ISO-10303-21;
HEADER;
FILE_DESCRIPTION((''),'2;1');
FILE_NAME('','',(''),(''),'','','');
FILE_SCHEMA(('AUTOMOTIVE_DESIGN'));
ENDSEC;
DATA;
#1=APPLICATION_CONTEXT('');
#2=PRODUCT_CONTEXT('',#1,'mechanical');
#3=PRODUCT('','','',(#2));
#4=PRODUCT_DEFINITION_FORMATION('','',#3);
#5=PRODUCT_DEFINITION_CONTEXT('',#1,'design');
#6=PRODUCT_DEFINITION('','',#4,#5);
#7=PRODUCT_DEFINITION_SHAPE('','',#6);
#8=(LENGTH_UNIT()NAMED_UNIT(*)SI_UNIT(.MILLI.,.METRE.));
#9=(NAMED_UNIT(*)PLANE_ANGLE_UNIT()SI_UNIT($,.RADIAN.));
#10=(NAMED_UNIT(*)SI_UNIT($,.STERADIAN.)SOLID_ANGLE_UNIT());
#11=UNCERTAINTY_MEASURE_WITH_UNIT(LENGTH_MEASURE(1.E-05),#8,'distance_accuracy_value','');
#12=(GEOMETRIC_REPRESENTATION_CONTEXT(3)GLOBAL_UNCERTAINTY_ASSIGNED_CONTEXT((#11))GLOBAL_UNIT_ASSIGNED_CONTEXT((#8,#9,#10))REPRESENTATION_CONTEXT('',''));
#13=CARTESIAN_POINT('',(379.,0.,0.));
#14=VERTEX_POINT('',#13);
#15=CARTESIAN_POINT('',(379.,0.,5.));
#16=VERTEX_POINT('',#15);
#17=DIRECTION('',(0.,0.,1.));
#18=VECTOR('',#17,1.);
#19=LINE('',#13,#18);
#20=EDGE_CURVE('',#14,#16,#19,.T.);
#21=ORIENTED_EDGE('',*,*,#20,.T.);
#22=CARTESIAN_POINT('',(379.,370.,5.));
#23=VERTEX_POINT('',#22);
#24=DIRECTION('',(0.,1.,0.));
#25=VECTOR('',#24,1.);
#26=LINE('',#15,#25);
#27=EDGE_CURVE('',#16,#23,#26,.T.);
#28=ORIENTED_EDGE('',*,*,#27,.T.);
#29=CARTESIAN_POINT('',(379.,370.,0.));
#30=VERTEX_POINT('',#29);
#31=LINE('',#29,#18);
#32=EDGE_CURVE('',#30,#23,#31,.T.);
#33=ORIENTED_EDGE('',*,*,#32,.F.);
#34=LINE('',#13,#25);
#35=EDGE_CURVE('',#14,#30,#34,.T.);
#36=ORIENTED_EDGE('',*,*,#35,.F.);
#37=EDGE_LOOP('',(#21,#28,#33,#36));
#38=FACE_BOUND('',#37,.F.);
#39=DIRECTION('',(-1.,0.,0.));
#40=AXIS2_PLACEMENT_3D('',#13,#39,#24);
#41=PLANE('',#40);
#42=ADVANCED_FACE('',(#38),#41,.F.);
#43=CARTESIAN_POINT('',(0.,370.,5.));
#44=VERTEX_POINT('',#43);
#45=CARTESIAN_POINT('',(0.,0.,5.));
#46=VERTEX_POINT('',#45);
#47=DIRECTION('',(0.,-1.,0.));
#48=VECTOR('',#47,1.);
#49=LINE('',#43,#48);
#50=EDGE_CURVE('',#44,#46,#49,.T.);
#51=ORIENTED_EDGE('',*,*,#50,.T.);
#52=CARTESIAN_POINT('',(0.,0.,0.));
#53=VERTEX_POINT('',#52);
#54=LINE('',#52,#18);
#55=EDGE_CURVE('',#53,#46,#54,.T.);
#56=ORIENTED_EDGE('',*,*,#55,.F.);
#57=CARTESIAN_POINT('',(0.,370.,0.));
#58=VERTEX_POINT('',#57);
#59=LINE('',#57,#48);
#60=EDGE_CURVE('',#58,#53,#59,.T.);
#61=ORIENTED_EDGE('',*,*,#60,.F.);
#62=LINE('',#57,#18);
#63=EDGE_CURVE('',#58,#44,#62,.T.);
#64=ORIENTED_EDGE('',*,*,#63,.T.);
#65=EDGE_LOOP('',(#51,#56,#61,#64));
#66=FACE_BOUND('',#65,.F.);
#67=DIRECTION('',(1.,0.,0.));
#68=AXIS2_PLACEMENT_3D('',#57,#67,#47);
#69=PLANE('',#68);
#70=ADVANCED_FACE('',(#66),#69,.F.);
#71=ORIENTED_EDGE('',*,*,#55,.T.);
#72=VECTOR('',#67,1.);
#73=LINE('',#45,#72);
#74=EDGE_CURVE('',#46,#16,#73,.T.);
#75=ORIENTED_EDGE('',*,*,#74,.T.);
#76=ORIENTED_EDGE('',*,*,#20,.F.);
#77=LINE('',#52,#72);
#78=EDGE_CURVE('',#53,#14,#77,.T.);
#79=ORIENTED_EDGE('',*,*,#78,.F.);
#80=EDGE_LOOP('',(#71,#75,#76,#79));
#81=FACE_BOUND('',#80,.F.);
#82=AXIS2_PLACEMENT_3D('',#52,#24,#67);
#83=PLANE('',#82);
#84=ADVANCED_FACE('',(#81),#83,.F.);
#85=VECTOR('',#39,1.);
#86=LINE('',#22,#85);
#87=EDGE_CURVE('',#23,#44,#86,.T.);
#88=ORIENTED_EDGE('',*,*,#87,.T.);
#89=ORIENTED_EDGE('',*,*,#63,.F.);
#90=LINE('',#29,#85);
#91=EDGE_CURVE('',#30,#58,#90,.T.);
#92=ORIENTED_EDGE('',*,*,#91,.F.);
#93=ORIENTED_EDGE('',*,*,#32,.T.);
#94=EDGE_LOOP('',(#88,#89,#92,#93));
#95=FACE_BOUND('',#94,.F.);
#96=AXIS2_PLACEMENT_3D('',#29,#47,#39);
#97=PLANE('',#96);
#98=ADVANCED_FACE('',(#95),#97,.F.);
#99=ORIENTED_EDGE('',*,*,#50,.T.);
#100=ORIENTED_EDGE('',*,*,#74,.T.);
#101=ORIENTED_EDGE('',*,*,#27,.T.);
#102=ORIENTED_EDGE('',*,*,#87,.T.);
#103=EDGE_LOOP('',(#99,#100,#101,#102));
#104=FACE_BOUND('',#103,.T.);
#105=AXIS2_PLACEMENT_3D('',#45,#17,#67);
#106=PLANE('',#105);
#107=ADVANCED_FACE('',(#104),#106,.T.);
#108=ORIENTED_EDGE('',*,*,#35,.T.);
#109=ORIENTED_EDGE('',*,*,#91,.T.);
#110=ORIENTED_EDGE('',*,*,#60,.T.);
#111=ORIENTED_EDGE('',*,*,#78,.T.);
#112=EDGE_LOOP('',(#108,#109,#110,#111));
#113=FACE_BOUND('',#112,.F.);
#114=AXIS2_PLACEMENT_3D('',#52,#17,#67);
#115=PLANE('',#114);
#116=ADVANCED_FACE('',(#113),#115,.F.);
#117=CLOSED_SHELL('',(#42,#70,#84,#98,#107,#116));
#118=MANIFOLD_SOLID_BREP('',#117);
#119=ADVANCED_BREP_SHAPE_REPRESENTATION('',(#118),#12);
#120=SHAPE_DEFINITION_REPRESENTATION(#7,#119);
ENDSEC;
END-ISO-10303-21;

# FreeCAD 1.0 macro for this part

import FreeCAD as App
import Part
import Sketcher

V = App.Vector


def add_polygon(sketch, points):
    """Adds a closed chain of lines whose ends are joined by coincident constraints."""
    first, n = sketch.GeometryCount, len(points)
    for a, b in zip(points, points[1:] + points[:1]):
        sketch.addGeometry(Part.LineSegment(App.Vector(*a, 0), App.Vector(*b, 0)), False)
    for i in range(n):
        sketch.addConstraint(Sketcher.Constraint("Coincident", first + i, 2, first + (i + 1) % n, 1))

doc = App.newDocument("Part")
params = doc.addObject("Spreadsheet::Sheet", "Params")
for row, (alias, value) in enumerate([
    ("sketch1_width", "379 mm"),
    ("sketch1_height", "370 mm"),
    ("pad1_length", "5 mm"),
], start=1):
    params.set(f"A{row}", alias)
    params.set(f"B{row}", "=" + value)
    params.setAlias(f"B{row}", alias)

body = doc.addObject("PartDesign::Body", "Body")

sketch1 = doc.addObject("Sketcher::SketchObject", "Sketch")
body.addObject(sketch1)
sketch1.AttachmentSupport = (doc.XY_Plane, [""])
sketch1.MapMode = "FlatFace"
add_polygon(sketch1, [(0, 370), (0, 0), (379, 0), (379, 370)])
sketch1.addConstraint([
    Sketcher.Constraint("Vertical", 0),
    Sketcher.Constraint("Horizontal", 1),
    Sketcher.Constraint("Vertical", 2),
    Sketcher.Constraint("Horizontal", 3),
    Sketcher.Constraint("Coincident", 0, 2, -1, 1),
    Sketcher.Constraint("DistanceX", 1, 1, 1, 2, 379.0),
    Sketcher.Constraint("DistanceY", 0, 2, 0, 1, 370.0),
])
sketch1.setExpression("Constraints[9]", "Params.sketch1_width")
sketch1.setExpression("Constraints[10]", "Params.sketch1_height")
pad1 = doc.addObject("PartDesign::Pad", "Pad")
body.addObject(pad1)
pad1.Profile = sketch1
pad1.setExpression("Length", "Params.pad1_length")

doc.recompute()
